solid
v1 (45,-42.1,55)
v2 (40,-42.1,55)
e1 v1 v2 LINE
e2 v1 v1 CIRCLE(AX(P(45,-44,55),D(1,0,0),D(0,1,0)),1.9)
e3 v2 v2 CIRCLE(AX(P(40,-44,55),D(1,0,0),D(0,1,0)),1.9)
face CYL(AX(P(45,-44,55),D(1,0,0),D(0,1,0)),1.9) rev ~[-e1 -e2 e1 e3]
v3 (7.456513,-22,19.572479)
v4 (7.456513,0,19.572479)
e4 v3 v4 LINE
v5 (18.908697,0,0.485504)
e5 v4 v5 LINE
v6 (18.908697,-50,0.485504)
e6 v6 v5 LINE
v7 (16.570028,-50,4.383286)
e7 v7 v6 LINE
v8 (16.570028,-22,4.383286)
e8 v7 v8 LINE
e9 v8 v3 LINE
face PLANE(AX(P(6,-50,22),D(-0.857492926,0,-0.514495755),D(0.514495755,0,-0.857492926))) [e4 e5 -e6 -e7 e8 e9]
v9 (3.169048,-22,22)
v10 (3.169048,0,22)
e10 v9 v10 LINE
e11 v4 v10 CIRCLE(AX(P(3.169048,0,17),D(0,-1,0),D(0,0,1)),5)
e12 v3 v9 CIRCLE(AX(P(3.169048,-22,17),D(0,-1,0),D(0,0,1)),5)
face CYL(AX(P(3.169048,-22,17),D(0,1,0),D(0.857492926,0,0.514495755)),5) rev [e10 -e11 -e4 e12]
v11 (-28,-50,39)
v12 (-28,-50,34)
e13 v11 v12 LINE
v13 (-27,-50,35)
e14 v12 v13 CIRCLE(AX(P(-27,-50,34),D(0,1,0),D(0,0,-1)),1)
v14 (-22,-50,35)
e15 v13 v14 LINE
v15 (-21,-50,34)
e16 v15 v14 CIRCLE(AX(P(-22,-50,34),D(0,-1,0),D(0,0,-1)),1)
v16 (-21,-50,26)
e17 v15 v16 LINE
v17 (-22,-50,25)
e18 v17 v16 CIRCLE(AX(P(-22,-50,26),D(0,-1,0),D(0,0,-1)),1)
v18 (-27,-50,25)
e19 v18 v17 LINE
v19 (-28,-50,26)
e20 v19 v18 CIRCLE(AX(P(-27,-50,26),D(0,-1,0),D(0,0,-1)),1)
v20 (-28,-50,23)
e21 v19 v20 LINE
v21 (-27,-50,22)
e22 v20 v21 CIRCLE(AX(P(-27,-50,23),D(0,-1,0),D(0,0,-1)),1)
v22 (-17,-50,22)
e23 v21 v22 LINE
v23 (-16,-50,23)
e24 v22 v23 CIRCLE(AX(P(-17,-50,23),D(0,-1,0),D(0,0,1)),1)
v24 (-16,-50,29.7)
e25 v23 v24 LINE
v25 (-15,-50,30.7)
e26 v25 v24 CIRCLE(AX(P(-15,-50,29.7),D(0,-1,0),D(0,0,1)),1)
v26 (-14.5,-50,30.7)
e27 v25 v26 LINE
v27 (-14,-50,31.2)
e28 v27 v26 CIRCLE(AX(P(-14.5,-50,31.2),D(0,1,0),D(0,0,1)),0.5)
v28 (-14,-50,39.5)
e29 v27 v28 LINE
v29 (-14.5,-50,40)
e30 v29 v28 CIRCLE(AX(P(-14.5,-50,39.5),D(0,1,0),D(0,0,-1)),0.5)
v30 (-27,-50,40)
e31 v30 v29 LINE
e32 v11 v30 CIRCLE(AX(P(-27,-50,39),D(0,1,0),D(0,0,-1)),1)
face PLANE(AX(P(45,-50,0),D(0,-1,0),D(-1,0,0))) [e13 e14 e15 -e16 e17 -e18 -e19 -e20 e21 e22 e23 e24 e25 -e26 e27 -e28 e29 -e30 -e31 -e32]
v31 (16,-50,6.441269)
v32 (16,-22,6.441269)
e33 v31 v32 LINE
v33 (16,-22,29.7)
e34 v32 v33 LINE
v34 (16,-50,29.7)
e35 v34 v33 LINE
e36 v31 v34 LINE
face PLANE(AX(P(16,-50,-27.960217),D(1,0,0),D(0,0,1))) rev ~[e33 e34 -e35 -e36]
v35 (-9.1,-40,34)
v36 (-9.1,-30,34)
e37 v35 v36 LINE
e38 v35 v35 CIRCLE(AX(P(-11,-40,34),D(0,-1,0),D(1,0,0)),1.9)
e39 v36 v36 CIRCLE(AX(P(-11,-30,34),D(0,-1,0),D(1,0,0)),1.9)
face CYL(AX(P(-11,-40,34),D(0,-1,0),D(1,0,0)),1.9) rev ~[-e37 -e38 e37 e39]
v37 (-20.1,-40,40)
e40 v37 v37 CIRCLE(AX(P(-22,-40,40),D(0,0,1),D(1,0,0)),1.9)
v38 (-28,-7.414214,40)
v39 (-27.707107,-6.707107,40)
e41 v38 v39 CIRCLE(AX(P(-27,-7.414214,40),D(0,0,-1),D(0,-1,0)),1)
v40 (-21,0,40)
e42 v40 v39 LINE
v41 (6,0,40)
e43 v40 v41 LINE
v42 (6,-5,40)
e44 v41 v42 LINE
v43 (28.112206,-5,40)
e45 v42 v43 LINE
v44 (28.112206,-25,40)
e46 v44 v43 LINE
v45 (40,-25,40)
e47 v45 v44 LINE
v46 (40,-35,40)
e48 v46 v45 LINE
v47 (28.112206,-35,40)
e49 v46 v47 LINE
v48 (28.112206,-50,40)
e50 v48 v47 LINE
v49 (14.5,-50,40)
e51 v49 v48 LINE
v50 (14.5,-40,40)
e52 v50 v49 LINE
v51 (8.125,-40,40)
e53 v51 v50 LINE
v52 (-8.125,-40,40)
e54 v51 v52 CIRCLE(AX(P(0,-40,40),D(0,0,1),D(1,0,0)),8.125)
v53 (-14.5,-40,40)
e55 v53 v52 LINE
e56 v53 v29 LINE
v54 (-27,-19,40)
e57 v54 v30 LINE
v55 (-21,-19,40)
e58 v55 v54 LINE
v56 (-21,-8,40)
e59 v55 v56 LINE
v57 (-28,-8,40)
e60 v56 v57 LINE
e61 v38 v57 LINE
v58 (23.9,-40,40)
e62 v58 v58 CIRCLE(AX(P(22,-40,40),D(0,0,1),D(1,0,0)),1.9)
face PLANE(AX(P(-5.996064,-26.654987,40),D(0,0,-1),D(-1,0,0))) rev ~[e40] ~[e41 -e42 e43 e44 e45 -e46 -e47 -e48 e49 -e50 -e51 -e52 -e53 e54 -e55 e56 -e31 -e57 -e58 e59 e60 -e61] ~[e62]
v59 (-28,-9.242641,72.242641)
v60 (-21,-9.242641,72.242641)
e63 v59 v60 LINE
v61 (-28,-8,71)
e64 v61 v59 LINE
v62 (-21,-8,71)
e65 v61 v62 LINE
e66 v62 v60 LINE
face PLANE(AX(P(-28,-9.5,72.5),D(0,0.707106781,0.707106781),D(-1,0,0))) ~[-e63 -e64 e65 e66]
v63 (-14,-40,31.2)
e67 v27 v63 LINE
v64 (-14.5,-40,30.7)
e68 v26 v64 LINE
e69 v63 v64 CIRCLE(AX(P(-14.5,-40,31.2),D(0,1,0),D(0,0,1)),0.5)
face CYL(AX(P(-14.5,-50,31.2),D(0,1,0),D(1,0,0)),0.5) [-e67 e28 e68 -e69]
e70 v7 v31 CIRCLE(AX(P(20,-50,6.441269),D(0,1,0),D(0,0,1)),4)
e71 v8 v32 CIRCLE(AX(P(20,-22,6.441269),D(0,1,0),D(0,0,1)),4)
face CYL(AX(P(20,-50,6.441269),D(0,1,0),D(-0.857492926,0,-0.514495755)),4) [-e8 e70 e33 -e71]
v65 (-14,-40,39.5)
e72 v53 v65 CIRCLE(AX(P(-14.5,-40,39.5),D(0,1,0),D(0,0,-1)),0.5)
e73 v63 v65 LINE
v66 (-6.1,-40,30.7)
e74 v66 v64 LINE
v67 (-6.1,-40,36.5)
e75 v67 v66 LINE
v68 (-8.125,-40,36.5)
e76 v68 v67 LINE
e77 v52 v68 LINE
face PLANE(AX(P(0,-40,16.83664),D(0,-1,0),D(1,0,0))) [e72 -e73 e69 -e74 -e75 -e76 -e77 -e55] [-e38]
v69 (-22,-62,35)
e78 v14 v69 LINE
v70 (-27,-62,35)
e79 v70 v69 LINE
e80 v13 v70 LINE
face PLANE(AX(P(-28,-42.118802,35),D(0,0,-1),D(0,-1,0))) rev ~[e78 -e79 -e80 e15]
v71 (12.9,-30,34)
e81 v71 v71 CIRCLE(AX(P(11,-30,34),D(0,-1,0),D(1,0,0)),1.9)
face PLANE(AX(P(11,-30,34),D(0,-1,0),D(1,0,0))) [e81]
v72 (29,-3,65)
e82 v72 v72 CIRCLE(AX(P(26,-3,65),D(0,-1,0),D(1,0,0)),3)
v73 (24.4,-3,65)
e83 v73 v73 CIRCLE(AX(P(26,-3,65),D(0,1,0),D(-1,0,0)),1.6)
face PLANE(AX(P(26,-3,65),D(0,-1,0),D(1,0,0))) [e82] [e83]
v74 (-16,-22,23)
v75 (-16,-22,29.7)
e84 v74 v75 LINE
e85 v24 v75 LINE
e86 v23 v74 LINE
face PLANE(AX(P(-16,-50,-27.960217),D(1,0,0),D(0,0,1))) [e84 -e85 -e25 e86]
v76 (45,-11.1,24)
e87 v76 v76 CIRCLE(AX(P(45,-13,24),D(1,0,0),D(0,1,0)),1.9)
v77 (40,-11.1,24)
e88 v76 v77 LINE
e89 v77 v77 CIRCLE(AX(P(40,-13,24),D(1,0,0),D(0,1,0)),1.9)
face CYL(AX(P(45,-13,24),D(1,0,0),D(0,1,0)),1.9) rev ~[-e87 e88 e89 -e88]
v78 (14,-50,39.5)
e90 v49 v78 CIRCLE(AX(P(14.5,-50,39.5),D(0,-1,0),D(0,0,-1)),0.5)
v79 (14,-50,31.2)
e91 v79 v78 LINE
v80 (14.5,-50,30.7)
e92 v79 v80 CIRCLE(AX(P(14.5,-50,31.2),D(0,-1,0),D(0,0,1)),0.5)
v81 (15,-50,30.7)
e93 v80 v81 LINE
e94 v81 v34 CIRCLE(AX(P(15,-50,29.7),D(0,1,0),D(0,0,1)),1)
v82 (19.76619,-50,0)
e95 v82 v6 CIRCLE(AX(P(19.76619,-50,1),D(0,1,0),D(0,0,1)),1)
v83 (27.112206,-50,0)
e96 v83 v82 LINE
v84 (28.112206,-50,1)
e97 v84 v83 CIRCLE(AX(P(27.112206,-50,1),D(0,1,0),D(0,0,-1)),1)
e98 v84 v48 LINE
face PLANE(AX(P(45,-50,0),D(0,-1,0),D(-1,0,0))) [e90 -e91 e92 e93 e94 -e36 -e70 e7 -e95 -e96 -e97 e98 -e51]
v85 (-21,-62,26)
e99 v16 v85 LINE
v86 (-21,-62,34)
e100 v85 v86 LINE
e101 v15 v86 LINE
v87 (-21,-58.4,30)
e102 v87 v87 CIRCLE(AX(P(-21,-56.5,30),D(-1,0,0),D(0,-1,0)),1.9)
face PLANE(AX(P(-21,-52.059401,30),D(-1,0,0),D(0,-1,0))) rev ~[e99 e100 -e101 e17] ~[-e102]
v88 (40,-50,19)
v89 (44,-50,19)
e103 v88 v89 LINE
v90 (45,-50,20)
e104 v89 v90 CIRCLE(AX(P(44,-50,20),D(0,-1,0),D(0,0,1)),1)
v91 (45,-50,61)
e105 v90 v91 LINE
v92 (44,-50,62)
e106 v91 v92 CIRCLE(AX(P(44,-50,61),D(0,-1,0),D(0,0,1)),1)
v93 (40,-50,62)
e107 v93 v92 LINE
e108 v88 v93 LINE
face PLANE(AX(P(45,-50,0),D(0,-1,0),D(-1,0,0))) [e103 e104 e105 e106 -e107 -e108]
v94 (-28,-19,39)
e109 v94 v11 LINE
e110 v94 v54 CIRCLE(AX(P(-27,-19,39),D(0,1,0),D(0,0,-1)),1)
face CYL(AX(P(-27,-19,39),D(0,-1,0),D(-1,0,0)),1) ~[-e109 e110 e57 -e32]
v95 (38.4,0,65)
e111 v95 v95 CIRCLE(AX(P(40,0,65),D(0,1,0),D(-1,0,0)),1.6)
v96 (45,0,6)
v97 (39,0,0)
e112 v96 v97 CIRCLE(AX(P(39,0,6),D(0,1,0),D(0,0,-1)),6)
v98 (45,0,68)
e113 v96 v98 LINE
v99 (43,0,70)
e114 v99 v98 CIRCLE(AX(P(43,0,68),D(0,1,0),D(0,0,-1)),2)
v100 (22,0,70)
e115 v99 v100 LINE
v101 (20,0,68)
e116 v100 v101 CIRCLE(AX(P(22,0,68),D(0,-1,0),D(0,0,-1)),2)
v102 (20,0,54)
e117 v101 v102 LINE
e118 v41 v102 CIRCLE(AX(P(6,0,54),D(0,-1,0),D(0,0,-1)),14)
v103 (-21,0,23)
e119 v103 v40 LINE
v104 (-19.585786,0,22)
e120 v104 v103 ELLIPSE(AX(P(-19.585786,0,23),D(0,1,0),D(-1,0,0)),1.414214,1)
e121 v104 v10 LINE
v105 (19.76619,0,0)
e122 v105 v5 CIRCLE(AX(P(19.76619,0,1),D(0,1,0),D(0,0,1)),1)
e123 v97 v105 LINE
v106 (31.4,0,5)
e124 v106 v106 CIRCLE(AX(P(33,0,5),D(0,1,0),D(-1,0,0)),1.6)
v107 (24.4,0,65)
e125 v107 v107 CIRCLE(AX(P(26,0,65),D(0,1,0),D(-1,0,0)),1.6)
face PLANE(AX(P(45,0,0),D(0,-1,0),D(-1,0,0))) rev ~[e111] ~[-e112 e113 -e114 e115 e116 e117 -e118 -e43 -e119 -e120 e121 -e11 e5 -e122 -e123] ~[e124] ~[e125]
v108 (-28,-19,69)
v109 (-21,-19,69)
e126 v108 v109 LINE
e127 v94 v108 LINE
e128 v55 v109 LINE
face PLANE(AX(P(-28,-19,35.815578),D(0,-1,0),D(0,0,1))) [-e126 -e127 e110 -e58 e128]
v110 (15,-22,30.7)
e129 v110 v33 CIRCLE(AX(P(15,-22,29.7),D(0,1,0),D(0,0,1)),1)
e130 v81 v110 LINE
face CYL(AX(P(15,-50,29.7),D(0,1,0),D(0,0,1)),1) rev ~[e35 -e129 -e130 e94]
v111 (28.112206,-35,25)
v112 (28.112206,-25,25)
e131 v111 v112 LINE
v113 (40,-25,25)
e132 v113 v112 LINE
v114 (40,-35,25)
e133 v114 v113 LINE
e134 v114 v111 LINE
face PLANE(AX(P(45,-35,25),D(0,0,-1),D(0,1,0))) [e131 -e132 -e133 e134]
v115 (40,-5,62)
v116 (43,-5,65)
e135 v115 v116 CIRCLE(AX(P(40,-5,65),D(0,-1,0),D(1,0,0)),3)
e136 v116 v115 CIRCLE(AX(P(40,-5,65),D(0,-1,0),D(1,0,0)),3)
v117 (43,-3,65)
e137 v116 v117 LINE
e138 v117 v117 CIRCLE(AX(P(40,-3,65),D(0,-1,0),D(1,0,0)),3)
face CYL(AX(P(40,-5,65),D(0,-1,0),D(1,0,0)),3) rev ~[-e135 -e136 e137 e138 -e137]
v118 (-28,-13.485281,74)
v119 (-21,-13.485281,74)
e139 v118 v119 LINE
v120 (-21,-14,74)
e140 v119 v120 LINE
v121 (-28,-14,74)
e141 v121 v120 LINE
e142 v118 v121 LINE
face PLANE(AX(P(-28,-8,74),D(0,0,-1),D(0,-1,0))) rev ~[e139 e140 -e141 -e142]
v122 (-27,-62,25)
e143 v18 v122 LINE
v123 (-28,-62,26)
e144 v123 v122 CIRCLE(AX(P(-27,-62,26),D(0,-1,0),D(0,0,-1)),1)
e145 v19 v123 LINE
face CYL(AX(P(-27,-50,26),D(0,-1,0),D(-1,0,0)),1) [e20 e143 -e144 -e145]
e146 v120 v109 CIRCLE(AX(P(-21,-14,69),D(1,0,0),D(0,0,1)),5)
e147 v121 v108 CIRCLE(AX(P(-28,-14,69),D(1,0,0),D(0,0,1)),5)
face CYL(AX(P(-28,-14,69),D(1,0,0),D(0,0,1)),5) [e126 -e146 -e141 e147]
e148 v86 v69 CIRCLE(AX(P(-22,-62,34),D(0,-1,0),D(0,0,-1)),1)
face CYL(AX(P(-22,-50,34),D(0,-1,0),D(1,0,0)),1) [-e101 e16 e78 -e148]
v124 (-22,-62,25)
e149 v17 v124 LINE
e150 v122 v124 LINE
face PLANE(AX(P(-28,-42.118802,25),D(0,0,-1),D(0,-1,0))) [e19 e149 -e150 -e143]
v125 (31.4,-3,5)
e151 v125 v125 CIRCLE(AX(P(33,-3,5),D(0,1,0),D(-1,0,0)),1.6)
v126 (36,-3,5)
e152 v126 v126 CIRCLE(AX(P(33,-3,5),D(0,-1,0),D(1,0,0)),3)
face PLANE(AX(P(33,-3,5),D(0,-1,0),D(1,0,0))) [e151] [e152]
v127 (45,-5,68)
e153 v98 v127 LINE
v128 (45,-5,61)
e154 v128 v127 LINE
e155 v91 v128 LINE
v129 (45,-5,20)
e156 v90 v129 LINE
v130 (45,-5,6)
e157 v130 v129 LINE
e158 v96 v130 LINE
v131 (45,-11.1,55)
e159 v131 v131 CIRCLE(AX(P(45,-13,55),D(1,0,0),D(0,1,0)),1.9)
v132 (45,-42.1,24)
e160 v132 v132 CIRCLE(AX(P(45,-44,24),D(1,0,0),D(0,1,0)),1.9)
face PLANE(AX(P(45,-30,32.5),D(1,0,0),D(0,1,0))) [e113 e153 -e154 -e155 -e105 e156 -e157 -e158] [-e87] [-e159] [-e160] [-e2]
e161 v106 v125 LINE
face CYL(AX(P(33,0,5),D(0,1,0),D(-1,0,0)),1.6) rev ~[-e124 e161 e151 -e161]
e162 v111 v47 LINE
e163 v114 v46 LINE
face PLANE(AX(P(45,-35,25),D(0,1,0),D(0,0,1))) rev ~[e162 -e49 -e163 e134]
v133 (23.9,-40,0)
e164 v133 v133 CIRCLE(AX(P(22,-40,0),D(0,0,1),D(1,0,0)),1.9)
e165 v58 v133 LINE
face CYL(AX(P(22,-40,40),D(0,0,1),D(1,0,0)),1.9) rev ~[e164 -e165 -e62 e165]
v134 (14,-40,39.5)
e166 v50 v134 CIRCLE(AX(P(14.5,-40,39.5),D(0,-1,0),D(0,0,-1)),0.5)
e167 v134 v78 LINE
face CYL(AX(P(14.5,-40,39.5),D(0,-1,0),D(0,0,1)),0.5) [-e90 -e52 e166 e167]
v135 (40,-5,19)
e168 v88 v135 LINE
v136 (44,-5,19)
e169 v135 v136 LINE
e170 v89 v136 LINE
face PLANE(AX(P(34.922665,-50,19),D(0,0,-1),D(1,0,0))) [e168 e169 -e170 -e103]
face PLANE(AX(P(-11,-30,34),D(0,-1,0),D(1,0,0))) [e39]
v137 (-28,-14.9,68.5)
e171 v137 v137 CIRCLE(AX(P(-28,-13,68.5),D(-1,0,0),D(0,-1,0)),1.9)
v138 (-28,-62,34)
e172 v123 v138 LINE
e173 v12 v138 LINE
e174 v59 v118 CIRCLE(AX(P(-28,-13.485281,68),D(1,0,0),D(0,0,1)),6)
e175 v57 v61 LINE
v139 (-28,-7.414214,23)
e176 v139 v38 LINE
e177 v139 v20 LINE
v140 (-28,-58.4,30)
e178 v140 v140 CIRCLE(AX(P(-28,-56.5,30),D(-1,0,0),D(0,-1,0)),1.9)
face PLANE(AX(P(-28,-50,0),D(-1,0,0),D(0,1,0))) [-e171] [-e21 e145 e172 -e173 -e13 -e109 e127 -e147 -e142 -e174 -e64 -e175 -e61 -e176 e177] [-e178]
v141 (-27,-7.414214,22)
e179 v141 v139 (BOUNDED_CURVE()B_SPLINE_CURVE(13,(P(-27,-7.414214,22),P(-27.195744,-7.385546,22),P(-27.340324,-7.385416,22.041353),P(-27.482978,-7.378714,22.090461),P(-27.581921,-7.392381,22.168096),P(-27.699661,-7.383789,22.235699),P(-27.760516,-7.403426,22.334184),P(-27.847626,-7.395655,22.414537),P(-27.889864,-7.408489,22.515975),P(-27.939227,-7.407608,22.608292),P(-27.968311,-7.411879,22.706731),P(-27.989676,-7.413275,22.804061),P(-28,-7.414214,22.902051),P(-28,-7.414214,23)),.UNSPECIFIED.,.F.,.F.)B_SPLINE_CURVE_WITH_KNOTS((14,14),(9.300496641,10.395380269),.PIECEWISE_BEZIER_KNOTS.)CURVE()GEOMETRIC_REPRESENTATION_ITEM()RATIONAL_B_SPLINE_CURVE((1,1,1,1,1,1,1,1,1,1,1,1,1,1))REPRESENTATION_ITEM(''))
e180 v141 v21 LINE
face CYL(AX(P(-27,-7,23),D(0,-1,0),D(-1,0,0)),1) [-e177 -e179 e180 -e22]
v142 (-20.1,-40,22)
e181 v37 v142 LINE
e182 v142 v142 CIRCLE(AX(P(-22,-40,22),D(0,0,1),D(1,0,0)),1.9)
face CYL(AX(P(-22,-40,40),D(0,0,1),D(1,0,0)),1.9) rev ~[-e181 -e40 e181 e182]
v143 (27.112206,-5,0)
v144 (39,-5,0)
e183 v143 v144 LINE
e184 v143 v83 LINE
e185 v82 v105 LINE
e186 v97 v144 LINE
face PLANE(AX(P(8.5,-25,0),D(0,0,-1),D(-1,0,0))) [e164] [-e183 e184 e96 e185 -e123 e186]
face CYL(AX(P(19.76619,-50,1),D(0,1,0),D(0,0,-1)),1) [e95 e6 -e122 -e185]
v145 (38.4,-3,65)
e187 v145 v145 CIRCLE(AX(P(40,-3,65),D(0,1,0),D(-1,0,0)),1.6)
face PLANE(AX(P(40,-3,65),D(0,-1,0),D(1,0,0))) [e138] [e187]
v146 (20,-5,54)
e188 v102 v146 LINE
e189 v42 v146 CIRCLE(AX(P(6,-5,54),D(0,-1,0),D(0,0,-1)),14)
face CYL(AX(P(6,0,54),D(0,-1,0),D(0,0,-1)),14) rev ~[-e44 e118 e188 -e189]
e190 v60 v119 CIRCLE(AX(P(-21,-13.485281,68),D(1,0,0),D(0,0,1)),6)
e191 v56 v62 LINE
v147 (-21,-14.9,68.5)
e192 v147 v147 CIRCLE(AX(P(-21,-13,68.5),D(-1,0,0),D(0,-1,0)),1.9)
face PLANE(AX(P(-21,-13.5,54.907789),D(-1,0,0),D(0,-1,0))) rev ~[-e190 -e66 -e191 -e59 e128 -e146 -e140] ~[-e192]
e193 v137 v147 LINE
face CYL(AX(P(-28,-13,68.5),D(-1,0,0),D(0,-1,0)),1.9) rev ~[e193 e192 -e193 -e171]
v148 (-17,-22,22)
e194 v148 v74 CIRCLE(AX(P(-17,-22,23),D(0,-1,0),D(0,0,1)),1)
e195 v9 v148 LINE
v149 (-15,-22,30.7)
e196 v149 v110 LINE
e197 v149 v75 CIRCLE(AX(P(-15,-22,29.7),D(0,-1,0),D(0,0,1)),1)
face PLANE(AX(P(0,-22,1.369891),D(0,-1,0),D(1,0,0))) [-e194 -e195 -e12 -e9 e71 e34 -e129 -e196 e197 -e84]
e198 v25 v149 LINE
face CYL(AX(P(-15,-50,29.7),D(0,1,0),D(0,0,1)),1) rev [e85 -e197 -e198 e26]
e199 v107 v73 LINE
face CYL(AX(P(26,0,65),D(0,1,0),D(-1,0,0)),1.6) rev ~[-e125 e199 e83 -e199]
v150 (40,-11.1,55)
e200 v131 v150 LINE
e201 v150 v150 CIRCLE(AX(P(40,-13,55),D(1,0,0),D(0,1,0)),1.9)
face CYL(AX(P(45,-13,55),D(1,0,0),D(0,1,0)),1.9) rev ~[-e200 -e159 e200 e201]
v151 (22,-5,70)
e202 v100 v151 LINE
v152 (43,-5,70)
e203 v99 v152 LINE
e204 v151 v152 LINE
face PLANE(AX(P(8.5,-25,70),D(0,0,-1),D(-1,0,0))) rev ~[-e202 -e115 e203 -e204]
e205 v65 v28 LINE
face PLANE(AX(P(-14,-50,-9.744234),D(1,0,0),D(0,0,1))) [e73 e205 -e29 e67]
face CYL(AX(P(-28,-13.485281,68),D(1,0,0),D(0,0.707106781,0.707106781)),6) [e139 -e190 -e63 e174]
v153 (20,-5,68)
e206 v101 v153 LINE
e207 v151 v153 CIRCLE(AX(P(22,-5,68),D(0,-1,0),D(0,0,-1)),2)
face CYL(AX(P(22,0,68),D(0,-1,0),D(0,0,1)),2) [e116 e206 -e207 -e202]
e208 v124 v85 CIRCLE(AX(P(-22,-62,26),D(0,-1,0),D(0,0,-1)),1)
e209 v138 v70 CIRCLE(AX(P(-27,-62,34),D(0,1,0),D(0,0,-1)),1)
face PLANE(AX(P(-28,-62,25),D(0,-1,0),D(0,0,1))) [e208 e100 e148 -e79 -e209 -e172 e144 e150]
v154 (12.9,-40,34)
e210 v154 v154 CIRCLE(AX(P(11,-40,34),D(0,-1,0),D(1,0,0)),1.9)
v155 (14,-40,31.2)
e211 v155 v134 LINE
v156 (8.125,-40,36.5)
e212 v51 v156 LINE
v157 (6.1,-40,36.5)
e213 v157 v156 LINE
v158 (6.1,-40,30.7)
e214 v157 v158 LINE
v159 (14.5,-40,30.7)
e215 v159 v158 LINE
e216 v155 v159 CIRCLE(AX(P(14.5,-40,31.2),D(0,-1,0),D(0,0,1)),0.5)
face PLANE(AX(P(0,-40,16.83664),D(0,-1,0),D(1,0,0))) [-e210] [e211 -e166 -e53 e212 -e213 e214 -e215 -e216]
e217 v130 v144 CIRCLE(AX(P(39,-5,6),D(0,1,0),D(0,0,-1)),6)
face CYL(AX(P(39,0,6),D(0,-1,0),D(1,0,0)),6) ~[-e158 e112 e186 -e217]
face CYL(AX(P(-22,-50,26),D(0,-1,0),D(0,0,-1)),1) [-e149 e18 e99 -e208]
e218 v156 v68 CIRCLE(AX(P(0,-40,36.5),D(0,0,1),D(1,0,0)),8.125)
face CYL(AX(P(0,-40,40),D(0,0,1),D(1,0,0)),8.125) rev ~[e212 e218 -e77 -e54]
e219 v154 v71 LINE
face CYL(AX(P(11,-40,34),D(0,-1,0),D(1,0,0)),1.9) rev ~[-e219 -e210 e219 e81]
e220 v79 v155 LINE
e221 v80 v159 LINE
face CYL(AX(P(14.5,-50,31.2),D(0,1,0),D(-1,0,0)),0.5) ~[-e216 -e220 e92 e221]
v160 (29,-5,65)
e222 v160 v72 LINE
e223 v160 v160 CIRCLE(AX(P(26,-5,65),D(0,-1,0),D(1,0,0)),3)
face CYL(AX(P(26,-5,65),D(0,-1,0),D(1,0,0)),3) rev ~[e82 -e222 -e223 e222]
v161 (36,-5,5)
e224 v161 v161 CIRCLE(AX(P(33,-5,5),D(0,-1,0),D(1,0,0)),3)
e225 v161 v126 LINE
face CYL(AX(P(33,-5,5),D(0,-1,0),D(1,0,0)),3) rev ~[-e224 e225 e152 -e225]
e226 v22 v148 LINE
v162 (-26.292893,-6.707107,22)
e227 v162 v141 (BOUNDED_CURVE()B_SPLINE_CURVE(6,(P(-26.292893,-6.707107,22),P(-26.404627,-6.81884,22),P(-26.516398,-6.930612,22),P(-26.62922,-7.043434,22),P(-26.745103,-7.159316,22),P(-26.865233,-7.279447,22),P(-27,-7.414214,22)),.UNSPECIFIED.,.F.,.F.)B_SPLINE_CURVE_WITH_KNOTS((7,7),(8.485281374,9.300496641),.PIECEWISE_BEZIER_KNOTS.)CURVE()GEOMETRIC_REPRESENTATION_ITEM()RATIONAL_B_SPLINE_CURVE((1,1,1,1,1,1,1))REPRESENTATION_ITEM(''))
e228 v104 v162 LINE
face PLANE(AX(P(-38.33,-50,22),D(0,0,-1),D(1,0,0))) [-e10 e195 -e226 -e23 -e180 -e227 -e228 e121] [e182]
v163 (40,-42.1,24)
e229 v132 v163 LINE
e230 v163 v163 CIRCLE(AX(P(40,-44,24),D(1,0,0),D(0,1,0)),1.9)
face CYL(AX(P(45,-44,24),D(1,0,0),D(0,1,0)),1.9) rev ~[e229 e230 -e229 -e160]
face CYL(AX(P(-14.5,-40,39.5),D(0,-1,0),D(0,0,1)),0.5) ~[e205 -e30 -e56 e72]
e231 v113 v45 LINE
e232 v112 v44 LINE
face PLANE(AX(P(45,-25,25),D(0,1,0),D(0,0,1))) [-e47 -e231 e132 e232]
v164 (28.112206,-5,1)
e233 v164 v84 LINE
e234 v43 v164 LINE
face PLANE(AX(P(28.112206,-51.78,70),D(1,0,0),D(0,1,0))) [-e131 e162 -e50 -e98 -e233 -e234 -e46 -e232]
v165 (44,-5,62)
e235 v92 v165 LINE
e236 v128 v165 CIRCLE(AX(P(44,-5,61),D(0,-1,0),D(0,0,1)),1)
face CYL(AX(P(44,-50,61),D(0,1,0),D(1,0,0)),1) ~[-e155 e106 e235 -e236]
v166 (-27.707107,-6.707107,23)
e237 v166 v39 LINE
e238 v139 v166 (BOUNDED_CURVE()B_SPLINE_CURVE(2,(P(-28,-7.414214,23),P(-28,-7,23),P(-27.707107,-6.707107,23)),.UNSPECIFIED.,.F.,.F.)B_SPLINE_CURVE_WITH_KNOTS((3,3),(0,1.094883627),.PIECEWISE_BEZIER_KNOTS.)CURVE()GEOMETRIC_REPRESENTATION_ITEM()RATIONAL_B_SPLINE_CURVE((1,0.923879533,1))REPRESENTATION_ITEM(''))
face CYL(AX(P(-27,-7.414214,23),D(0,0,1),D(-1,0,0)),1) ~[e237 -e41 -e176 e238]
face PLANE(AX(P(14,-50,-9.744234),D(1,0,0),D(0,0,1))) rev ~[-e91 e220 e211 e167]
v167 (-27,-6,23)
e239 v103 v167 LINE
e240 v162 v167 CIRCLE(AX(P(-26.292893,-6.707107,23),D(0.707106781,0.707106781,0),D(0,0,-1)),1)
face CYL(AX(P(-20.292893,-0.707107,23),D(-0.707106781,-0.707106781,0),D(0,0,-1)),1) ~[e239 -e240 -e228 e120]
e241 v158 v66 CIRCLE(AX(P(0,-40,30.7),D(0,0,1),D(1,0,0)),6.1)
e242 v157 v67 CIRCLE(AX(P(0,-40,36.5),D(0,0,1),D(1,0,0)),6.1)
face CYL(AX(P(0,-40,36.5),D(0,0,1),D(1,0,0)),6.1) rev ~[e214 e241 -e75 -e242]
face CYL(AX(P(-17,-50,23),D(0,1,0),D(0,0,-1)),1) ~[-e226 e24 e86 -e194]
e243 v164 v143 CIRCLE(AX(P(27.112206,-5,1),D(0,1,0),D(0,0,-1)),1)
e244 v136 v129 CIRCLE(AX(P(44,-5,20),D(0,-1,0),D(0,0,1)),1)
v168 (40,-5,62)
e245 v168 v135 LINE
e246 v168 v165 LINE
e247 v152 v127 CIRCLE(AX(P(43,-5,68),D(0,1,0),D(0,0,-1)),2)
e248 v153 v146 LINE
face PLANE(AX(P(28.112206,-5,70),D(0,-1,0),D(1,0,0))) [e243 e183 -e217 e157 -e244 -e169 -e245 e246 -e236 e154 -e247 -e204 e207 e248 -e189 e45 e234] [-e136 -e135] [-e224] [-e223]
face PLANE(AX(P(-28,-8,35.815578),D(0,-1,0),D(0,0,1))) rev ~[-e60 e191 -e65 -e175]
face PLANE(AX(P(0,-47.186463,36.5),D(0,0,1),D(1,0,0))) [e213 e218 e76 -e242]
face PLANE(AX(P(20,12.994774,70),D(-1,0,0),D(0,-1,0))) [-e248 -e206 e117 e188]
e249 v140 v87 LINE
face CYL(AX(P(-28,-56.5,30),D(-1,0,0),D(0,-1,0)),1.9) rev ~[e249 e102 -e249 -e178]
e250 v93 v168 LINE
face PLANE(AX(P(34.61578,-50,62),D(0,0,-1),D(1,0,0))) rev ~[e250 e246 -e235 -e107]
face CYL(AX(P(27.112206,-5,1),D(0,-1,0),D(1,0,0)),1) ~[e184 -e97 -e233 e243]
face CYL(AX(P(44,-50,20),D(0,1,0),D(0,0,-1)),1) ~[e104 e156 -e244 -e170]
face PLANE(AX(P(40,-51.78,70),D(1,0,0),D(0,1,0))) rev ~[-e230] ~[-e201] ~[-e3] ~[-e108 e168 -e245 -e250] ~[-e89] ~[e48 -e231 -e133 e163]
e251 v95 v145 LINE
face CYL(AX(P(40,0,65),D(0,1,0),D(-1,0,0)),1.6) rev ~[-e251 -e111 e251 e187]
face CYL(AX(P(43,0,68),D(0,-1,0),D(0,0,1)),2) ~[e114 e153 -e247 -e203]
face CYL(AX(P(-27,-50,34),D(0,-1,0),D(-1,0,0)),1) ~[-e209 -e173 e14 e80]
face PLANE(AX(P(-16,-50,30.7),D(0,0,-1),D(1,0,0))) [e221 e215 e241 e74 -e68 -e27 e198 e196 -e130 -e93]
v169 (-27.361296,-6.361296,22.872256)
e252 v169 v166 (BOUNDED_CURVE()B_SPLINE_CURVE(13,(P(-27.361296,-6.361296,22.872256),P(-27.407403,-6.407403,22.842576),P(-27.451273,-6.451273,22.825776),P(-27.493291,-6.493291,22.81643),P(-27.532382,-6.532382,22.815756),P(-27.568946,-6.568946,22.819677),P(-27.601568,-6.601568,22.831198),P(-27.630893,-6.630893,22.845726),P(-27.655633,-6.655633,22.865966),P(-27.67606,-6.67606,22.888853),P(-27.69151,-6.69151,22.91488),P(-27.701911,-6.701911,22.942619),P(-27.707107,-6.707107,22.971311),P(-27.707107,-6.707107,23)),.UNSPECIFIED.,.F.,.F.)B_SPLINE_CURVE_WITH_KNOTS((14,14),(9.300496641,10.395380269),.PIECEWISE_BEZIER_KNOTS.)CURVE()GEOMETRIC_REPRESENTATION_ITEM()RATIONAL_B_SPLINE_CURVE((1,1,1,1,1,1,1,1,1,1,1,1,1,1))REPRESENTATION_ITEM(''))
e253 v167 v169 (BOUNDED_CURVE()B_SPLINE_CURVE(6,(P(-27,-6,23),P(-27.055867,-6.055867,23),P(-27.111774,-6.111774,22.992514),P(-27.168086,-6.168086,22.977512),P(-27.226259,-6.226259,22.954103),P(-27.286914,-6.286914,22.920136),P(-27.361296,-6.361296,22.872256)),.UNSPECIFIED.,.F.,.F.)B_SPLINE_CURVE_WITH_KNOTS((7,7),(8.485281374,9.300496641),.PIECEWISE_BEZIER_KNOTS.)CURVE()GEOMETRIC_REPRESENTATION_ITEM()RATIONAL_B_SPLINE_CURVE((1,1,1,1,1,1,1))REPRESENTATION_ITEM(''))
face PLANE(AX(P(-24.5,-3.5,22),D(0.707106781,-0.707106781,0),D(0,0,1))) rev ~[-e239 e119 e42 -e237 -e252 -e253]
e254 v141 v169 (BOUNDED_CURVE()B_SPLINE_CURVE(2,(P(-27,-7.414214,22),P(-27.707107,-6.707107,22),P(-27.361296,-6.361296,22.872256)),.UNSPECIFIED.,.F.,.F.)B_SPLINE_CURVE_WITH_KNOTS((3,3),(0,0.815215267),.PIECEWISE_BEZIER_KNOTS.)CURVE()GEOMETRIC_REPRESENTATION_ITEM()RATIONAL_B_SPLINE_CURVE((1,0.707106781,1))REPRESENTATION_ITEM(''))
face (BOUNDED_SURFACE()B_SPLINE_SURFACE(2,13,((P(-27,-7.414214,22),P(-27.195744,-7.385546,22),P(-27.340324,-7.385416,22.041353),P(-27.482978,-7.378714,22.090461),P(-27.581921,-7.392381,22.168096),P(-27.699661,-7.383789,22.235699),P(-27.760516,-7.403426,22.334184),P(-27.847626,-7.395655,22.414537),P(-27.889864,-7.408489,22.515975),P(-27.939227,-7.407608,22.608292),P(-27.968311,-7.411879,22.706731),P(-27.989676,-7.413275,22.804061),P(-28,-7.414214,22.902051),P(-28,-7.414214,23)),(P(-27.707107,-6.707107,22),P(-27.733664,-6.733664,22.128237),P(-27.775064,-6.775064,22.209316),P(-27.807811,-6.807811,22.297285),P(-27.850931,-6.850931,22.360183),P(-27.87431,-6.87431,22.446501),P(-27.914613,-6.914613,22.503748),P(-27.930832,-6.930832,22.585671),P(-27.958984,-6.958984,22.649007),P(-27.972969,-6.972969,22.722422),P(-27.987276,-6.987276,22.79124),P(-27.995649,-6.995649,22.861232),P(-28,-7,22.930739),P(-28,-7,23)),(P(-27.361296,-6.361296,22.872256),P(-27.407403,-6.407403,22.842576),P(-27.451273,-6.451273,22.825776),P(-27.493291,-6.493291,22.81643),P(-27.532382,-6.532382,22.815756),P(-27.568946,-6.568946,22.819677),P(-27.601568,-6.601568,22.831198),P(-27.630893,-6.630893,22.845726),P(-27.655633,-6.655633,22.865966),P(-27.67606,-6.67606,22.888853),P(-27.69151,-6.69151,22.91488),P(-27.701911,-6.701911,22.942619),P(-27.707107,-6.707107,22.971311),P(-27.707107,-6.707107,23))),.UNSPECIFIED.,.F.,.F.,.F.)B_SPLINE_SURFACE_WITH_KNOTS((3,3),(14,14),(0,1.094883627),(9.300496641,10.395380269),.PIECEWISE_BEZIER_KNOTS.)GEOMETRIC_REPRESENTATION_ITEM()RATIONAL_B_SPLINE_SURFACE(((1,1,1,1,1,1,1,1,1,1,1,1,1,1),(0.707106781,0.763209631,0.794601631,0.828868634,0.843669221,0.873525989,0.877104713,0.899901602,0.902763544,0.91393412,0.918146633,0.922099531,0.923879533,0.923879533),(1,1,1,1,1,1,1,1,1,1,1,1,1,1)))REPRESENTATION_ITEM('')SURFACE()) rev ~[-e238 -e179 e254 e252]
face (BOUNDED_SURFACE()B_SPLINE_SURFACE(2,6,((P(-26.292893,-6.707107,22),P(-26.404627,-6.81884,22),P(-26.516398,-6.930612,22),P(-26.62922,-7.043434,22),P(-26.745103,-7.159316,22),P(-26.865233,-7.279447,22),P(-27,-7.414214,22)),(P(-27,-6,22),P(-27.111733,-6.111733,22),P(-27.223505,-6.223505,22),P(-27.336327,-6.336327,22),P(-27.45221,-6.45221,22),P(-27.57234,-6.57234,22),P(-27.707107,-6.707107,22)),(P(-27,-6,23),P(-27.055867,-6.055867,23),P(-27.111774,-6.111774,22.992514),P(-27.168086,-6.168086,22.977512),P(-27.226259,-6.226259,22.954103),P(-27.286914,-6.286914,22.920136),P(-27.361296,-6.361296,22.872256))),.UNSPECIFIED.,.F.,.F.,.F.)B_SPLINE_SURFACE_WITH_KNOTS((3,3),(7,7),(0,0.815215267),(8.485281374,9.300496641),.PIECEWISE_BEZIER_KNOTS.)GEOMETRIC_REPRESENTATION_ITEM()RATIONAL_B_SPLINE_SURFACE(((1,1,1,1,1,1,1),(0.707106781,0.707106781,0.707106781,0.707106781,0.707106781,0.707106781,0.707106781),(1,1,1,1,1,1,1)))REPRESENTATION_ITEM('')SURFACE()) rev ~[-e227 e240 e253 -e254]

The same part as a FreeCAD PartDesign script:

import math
import FreeCAD as App
import Part
import Sketcher

V = App.Vector
Q = App.Units.Quantity


def edges_at(feature, points):
    """Names of the edges that pass closest to the given points."""
    edges = feature.Shape.Edges
    near = lambda p: min(range(len(edges)), key=lambda i: edges[i].distToShape(Part.Vertex(*p))[0])
    return sorted({f"Edge{near(p) + 1}" for p in points})


def add_polygon(sketch, points):
    """Adds a closed chain of lines whose ends are joined by coincident constraints."""
    first, n = sketch.GeometryCount, len(points)
    for a, b in zip(points, points[1:] + points[:1]):
        sketch.addGeometry(Part.LineSegment(App.Vector(*a, 0), App.Vector(*b, 0)), False)
    for i in range(n):
        sketch.addConstraint(Sketcher.Constraint("Coincident", first + i, 2, first + (i + 1) % n, 1))

doc = App.newDocument("Part")
body = doc.addObject("PartDesign::Body", "Body")

# Sketch on XY plane
sketch1 = body.newObject("Sketcher::SketchObject", "Sketch")
sketch1.AttachmentSupport = (doc.getObject("XY_Plane"), [""])
sketch1.MapMode = "FlatFace"
add_polygon(sketch1, [(45, 0), (-28, 0), (-28, -50), (45, -50)])  # lines 0-3
sketch1.addConstraint([
    Sketcher.Constraint("Horizontal", 0),
    Sketcher.Constraint("Vertical", 1),
    Sketcher.Constraint("Horizontal", 2),
    Sketcher.Constraint("Vertical", 3),
    Sketcher.Constraint("PointOnObject", 0, 2, -1),
    Sketcher.Constraint("DistanceX", 0, 2, 0, 1, Q("73 mm")),
    Sketcher.Constraint("DistanceY", 1, 2, 1, 1, Q("50 mm")),
    Sketcher.Constraint("DistanceX", 0, 2, -1, 1, Q("28 mm")),
])
pad1 = body.newObject("PartDesign::Pad", "Pad")
pad1.Profile = sketch1
pad1.Length = 70

# Sketch on XY plane
sketch2 = body.newObject("Sketcher::SketchObject", "Sketch001")
sketch2.AttachmentSupport = (doc.getObject("XY_Plane"), [""])
sketch2.MapMode = "FlatFace"
sketch2.AttachmentOffset = App.Placement(V(0, 0, 70), App.Rotation())
add_polygon(sketch2, [(28, -5), (28, -52), (40, -52), (40, -5)])  # lines 0-3
sketch2.addConstraint([
    Sketcher.Constraint("Vertical", 0),
    Sketcher.Constraint("Horizontal", 1),
    Sketcher.Constraint("Vertical", 2),
    Sketcher.Constraint("Horizontal", 3),
    Sketcher.Constraint("DistanceX", -1, 1, 1, 2, Q("40 mm")),
    Sketcher.Constraint("DistanceY", 2, 2, -1, 1, Q("5 mm")),
    Sketcher.Constraint("DistanceY", 0, 2, 0, 1, Q("46.78 mm")),
    Sketcher.Constraint("DistanceX", 1, 1, 1, 2, Q("11.887794 mm")),
])
pocket1 = body.newObject("PartDesign::Pocket", "Pocket")
pocket1.Profile = sketch2
pocket1.Type = "ThroughAll"

# Sketch on XY plane
sketch3 = body.newObject("Sketcher::SketchObject", "Sketch002")
sketch3.AttachmentSupport = (doc.getObject("XY_Plane"), [""])
sketch3.MapMode = "FlatFace"
sketch3.AttachmentOffset = App.Placement(V(0, 0, 70), App.Rotation())
add_polygon(sketch3, [(30, -65), (30, -5), (20, -5), (20, 13), (-41, 13), (-41, -65)])  # lines 0-5
sketch3.addConstraint([
    Sketcher.Constraint("Vertical", 0),
    Sketcher.Constraint("Horizontal", 1),
    Sketcher.Constraint("Vertical", 2),
    Sketcher.Constraint("Horizontal", 3),
    Sketcher.Constraint("Vertical", 4),
    Sketcher.Constraint("Horizontal", 5),
    Sketcher.Constraint("DistanceX", 1, 2, 1, 1, Q("10 mm")),
    Sketcher.Constraint("DistanceX", -1, 1, 0, 2, Q("30 mm")),
    Sketcher.Constraint("DistanceY", 0, 2, -1, 1, Q("5 mm")),
    Sketcher.Constraint("DistanceY", 4, 2, 4, 1, Q("78.090798 mm")),
    Sketcher.Constraint("DistanceX", 3, 2, 3, 1, Q("60.783405 mm")),
    Sketcher.Constraint("DistanceY", 0, 1, 0, 2, Q("60.096024 mm")),
])
pocket2 = body.newObject("PartDesign::Pocket", "Pocket001")
pocket2.Profile = sketch3
pocket2.Length = 30

# Sketch on XY plane
sketch4 = body.newObject("Sketcher::SketchObject", "Sketch003")
sketch4.AttachmentSupport = (doc.getObject("XY_Plane"), [""])
sketch4.MapMode = "FlatFace"
sketch4.AttachmentOffset = App.Placement(V(0, 0, 40), App.Rotation())
sketch4.addGeometry([
    Part.Circle(V(-22, -40, 0), V(0, 0, 1), 1.9),
    Part.Circle(V(22, -40, 0), V(0, 0, 1), 1.9),
], False)
sketch4.addConstraint([
    Sketcher.Constraint("Equal", 0, 1),
    Sketcher.Constraint("Symmetric", 0, 3, 1, 3, -2),
    Sketcher.Constraint("Diameter", 0, Q("3.8 mm")),
    Sketcher.Constraint("DistanceX", 0, 3, -1, 1, Q("22 mm")),
    Sketcher.Constraint("DistanceY", 0, 3, -1, 1, Q("40 mm")),
])
pocket3 = body.newObject("PartDesign::Pocket", "Pocket002")
pocket3.Profile = sketch4
pocket3.Type = "ThroughAll"

# Sketch on XY plane
sketch5 = body.newObject("Sketcher::SketchObject", "Sketch004")
sketch5.AttachmentSupport = (doc.getObject("XY_Plane"), [""])
sketch5.MapMode = "FlatFace"
sketch5.AttachmentOffset = App.Placement(V(0, 0, 40), App.Rotation())
sketch5.addGeometry([
    Part.ArcOfCircle(Part.Circle(V(0, -40, 0), V(0, 0, 1), 8), math.radians(0), math.radians(180)),
    Part.LineSegment(V(-8, -40, 0), V(-8, -59, 0)),
    Part.LineSegment(V(-8, -59, 0), V(8, -59, 0)),
    Part.LineSegment(V(8, -59, 0), V(8, -40, 0)),
], False)
sketch5.addConstraint([
    Sketcher.Constraint("Tangent", 0, 2, 1, 1),
    Sketcher.Constraint("Coincident", 1, 2, 2, 1),
    Sketcher.Constraint("Coincident", 2, 2, 3, 1),
    Sketcher.Constraint("Tangent", 3, 2, 0, 1),
    Sketcher.Constraint("Vertical", 1),
    Sketcher.Constraint("Horizontal", 2),
    Sketcher.Constraint("Vertical", 3),
    Sketcher.Constraint("PointOnObject", 0, 3, -2),
    Sketcher.Constraint("DistanceY", 0, 3, -1, 1, Q("40 mm")),
    Sketcher.Constraint("Radius", 0, Q("8.125 mm")),
    Sketcher.Constraint("DistanceY", 1, 2, 1, 1, Q("19.24 mm")),
])
pocket4 = body.newObject("PartDesign::Pocket", "Pocket003")
pocket4.Profile = sketch5
pocket4.Length = 3.5

# Sketch on XY plane
sketch6 = body.newObject("Sketcher::SketchObject", "Sketch005")
sketch6.AttachmentSupport = (doc.getObject("XY_Plane"), [""])
sketch6.MapMode = "FlatFace"
sketch6.AttachmentOffset = App.Placement(V(0, 0, 36.5), App.Rotation())
sketch6.addGeometry([
    Part.ArcOfCircle(Part.Circle(V(0, -40, 0), V(0, 0, 1), 6), math.radians(0), math.radians(180)),
    Part.LineSegment(V(-6, -40, 0), V(-6, -59, 0)),
    Part.LineSegment(V(-6, -59, 0), V(6, -59, 0)),
    Part.LineSegment(V(6, -59, 0), V(6, -40, 0)),
], False)
sketch6.addConstraint([
    Sketcher.Constraint("Tangent", 0, 2, 1, 1),
    Sketcher.Constraint("Coincident", 1, 2, 2, 1),
    Sketcher.Constraint("Coincident", 2, 2, 3, 1),
    Sketcher.Constraint("Tangent", 3, 2, 0, 1),
    Sketcher.Constraint("Vertical", 1),
    Sketcher.Constraint("Horizontal", 2),
    Sketcher.Constraint("Vertical", 3),
    Sketcher.Constraint("PointOnObject", 0, 3, -2),
    Sketcher.Constraint("Radius", 0, Q("6.1 mm")),
    Sketcher.Constraint("DistanceY", 0, 3, -1, 1, Q("40 mm")),
    Sketcher.Constraint("DistanceY", 1, 2, 1, 1, Q("18.98 mm")),
])
pocket5 = body.newObject("PartDesign::Pocket", "Pocket004")
pocket5.Profile = sketch6
pocket5.Length = 9

# Sketch on XZ plane
sketch7 = body.newObject("Sketcher::SketchObject", "Sketch006")
sketch7.AttachmentSupport = (doc.getObject("XZ_Plane"), [""])
sketch7.MapMode = "FlatFace"
sketch7.AttachmentOffset = App.Placement(V(0, 0, 50), App.Rotation())
add_polygon(sketch7, [(-14, 43), (-14, -10), (14, -10), (14, 43)])  # lines 0-3
sketch7.addConstraint([
    Sketcher.Constraint("Vertical", 0),
    Sketcher.Constraint("Horizontal", 1),
    Sketcher.Constraint("Vertical", 2),
    Sketcher.Constraint("Horizontal", 3),
    Sketcher.Constraint("DistanceX", 1, 1, 1, 2, Q("28 mm")),
    Sketcher.Constraint("DistanceX", 0, 2, -1, 1, Q("14 mm")),
    Sketcher.Constraint("DistanceY", 0, 2, 0, 1, Q("53.161749 mm")),
    Sketcher.Constraint("DistanceY", 0, 2, -1, 1, Q("9.744234 mm")),
])
pocket6 = body.newObject("PartDesign::Pocket", "Pocket005")
pocket6.Profile = sketch7
pocket6.Length = 10

# Sketch on XZ plane
sketch8 = body.newObject("Sketcher::SketchObject", "Sketch007")
sketch8.AttachmentSupport = (doc.getObject("XZ_Plane"), [""])
sketch8.MapMode = "FlatFace"
sketch8.AttachmentOffset = App.Placement(V(0, 0, 50), App.Rotation())
add_polygon(sketch8, [(-16, 31), (-16, -28), (16, -28), (16, 31)])  # lines 0-3
sketch8.addConstraint([
    Sketcher.Constraint("Vertical", 0),
    Sketcher.Constraint("Horizontal", 1),
    Sketcher.Constraint("Vertical", 2),
    Sketcher.Constraint("Horizontal", 3),
    Sketcher.Constraint("DistanceX", 1, 1, 1, 2, Q("32 mm")),
    Sketcher.Constraint("DistanceX", 0, 2, -1, 1, Q("16 mm")),
    Sketcher.Constraint("DistanceY", -1, 1, 2, 2, Q("30.7 mm")),
    Sketcher.Constraint("DistanceY", 0, 2, 0, 1, Q("58.660217 mm")),
])
pocket7 = body.newObject("PartDesign::Pocket", "Pocket006")
pocket7.Profile = sketch8
pocket7.Length = 28

# Sketch on XZ plane
sketch9 = body.newObject("Sketcher::SketchObject", "Sketch008")
sketch9.AttachmentSupport = (doc.getObject("XZ_Plane"), [""])
sketch9.MapMode = "FlatFace"
sketch9.AttachmentOffset = App.Placement(V(0, 0, 50), App.Rotation())
add_polygon(sketch9, [(6, 22), (-38, 22), (-38, -8), (24, -8)])  # lines 0-3
sketch9.addConstraint([
    Sketcher.Constraint("Horizontal", 0),
    Sketcher.Constraint("Vertical", 1),
    Sketcher.Constraint("Horizontal", 2),
    Sketcher.Constraint("DistanceY", 1, 2, 1, 1, Q("30 mm")),
    Sketcher.Constraint("DistanceY", -1, 1, 0, 2, Q("22 mm")),
    Sketcher.Constraint("DistanceX", -1, 1, 2, 2, Q("24 mm")),
    Sketcher.Constraint("DistanceX", -1, 1, 3, 2, Q("6 mm")),
    Sketcher.Constraint("DistanceX", 0, 2, 0, 1, Q("44.33 mm")),
])
pocket8 = body.newObject("PartDesign::Pocket", "Pocket007")
pocket8.Profile = sketch9
pocket8.Length = 51

# Sketch on XZ plane
sketch10 = body.newObject("Sketcher::SketchObject", "Sketch009")
sketch10.AttachmentSupport = (doc.getObject("XZ_Plane"), [""])
sketch10.MapMode = "FlatFace"
sketch10.AttachmentOffset = App.Placement(V(0, 0, 50), App.Rotation())
add_polygon(sketch10, [(35, 73), (35, 62), (54, 62), (54, 73)])  # lines 0-3
add_polygon(sketch10, [(35, 19), (35, -17), (71, -17), (71, 19)])  # lines 4-7
sketch10.addConstraint([
    Sketcher.Constraint("Vertical", 0),
    Sketcher.Constraint("Horizontal", 1),
    Sketcher.Constraint("Vertical", 2),
    Sketcher.Constraint("Horizontal", 3),
    Sketcher.Constraint("Vertical", 4),
    Sketcher.Constraint("Horizontal", 5),
    Sketcher.Constraint("Vertical", 6),
    Sketcher.Constraint("Horizontal", 7),
    Sketcher.Constraint("DistanceY", -1, 1, 0, 2, Q("62 mm")),
    Sketcher.Constraint("DistanceY", -1, 1, 6, 2, Q("19 mm")),
    Sketcher.Constraint("DistanceX", 1, 1, 1, 2, Q("19.05323 mm")),
    Sketcher.Constraint("DistanceX", 5, 1, 5, 2, Q("35.750058 mm")),
    Sketcher.Constraint("DistanceY", 0, 2, 0, 1, Q("10.69447 mm")),
    Sketcher.Constraint("DistanceY", 4, 2, 4, 1, Q("36.172176 mm")),
    Sketcher.Constraint("DistanceX", -1, 1, 0, 2, Q("34.61578 mm")),
    Sketcher.Constraint("DistanceX", -1, 1, 4, 2, Q("34.922665 mm")),
])
pocket9 = body.newObject("PartDesign::Pocket", "Pocket008")
pocket9.Profile = sketch10
pocket9.Length = 45

# Sketch on YZ plane
sketch11 = body.newObject("Sketcher::SketchObject", "Sketch010")
sketch11.AttachmentSupport = (doc.getObject("YZ_Plane"), [""])
sketch11.MapMode = "FlatFace"
sketch11.AttachmentOffset = App.Placement(V(0, 0, 45), App.Rotation())
sketch11.addGeometry([
    Part.Circle(V(-44, 55, 0), V(0, 0, 1), 1.9),
    Part.Circle(V(-13, 24, 0), V(0, 0, 1), 1.9),
    Part.Circle(V(-13, 55, 0), V(0, 0, 1), 1.9),
    Part.Circle(V(-44, 24, 0), V(0, 0, 1), 1.9),
], False)
sketch11.addConstraint([
    Sketcher.Constraint("Equal", 0, 1),
    Sketcher.Constraint("Equal", 1, 2),
    Sketcher.Constraint("Equal", 2, 3),
    Sketcher.Constraint("Horizontal", 0, 3, 2, 3),
    Sketcher.Constraint("Horizontal", 1, 3, 3, 3),
    Sketcher.Constraint("Vertical", 1, 3, 2, 3),
    Sketcher.Constraint("Vertical", 0, 3, 3, 3),
    Sketcher.Constraint("Diameter", 0, Q("3.8 mm")),
    Sketcher.Constraint("DistanceX", 0, 3, -1, 1, Q("44 mm")),
    Sketcher.Constraint("DistanceY", -1, 1, 0, 3, Q("55 mm")),
    Sketcher.Constraint("DistanceX", 1, 3, -1, 1, Q("13 mm")),
    Sketcher.Constraint("DistanceY", -1, 1, 1, 3, Q("24 mm")),
])
pocket10 = body.newObject("PartDesign::Pocket", "Pocket009")
pocket10.Profile = sketch11
pocket10.Length = 5

# Sketch on YZ plane
sketch12 = body.newObject("Sketcher::SketchObject", "Sketch011")
sketch12.AttachmentSupport = (doc.getObject("YZ_Plane"), [""])
sketch12.MapMode = "FlatFace"
sketch12.AttachmentOffset = App.Placement(V(0, 0, -28), App.Rotation())
add_polygon(sketch12, [(-8, 74), (-8, 36), (-19, 36), (-19, 74)])  # lines 0-3
add_polygon(sketch12, [(-42, 35), (-42, 25), (-62, 25), (-62, 35)])  # lines 4-7
sketch12.addConstraint([
    Sketcher.Constraint("Vertical", 0),
    Sketcher.Constraint("Horizontal", 1),
    Sketcher.Constraint("Vertical", 2),
    Sketcher.Constraint("Horizontal", 3),
    Sketcher.Constraint("Vertical", 4),
    Sketcher.Constraint("Horizontal", 5),
    Sketcher.Constraint("Vertical", 6),
    Sketcher.Constraint("Horizontal", 7),
    Sketcher.Constraint("DistanceX", 1, 2, 1, 1, Q("11 mm")),
    Sketcher.Constraint("DistanceY", 4, 2, 4, 1, Q("10 mm")),
    Sketcher.Constraint("DistanceX", 0, 2, -1, 1, Q("8 mm")),
    Sketcher.Constraint("DistanceY", -1, 1, 2, 2, Q("74 mm")),
    Sketcher.Constraint("DistanceY", -1, 1, 4, 2, Q("25 mm")),
    Sketcher.Constraint("DistanceX", 5, 2, -1, 1, Q("62 mm")),
    Sketcher.Constraint("DistanceY", 0, 2, 0, 1, Q("38.184422 mm")),
    Sketcher.Constraint("DistanceX", 5, 2, 5, 1, Q("19.881198 mm")),
])
pad2 = body.newObject("PartDesign::Pad", "Pad001")
pad2.Profile = sketch12
pad2.Length = 7

# Sketch on YZ plane
sketch13 = body.newObject("Sketcher::SketchObject", "Sketch012")
sketch13.AttachmentSupport = (doc.getObject("YZ_Plane"), [""])
sketch13.MapMode = "FlatFace"
sketch13.AttachmentOffset = App.Placement(V(0, 0, -28), App.Rotation())
sketch13.addGeometry([
    Part.Circle(V(-56.5, 30, 0), V(0, 0, 1), 1.9),
    Part.Circle(V(-13, 68.5, 0), V(0, 0, 1), 1.9),
], False)
sketch13.addConstraint([
    Sketcher.Constraint("Equal", 0, 1),
    Sketcher.Constraint("Diameter", 0, Q("3.8 mm")),
    Sketcher.Constraint("DistanceY", -1, 1, 0, 3, Q("30 mm")),
    Sketcher.Constraint("DistanceX", 1, 3, -1, 1, Q("13 mm")),
    Sketcher.Constraint("DistanceX", 0, 3, -1, 1, Q("56.5 mm")),
    Sketcher.Constraint("DistanceY", -1, 1, 1, 3, Q("68.5 mm")),
])
pocket11 = body.newObject("PartDesign::Pocket", "Pocket010")
pocket11.Profile = sketch13
pocket11.Length = 10
pocket11.Reversed = True

# Sketch on YZ plane
sketch14 = body.newObject("Sketcher::SketchObject", "Sketch013")
sketch14.AttachmentSupport = (doc.getObject("YZ_Plane"), [""])
sketch14.MapMode = "FlatFace"
sketch14.AttachmentOffset = App.Placement(V(0, 0, 45), App.Rotation())
add_polygon(sketch14, [(-35, 40), (-35, 25), (-25, 25), (-25, 40)])  # lines 0-3
sketch14.addConstraint([
    Sketcher.Constraint("Vertical", 0),
    Sketcher.Constraint("Horizontal", 1),
    Sketcher.Constraint("Vertical", 2),
    Sketcher.Constraint("Horizontal", 3),
    Sketcher.Constraint("DistanceX", 1, 1, 1, 2, Q("10 mm")),
    Sketcher.Constraint("DistanceY", 0, 2, 0, 1, Q("15 mm")),
    Sketcher.Constraint("DistanceX", 0, 2, -1, 1, Q("35 mm")),
    Sketcher.Constraint("DistanceY", -1, 1, 0, 2, Q("25 mm")),
])
pad3 = body.newObject("PartDesign::Pad", "Pad002")
pad3.Profile = sketch14
pad3.Length = 18
pad3.Reversed = True

# Sketch on XZ plane
sketch15 = body.newObject("Sketcher::SketchObject", "Sketch014")
sketch15.AttachmentSupport = (doc.getObject("XZ_Plane"), [""])
sketch15.MapMode = "FlatFace"
sketch15.addGeometry([
    Part.Circle(V(33, 5, 0), V(0, 0, 1), 1.6),
    Part.Circle(V(40, 65, 0), V(0, 0, 1), 1.6),
    Part.Circle(V(26, 65, 0), V(0, 0, 1), 1.6),
], False)
sketch15.addConstraint([
    Sketcher.Constraint("Equal", 0, 1),
    Sketcher.Constraint("Equal", 1, 2),
    Sketcher.Constraint("Horizontal", 1, 3, 2, 3),
    Sketcher.Constraint("Diameter", 0, Q("3.2 mm")),
    Sketcher.Constraint("DistanceX", -1, 1, 0, 3, Q("33 mm")),
    Sketcher.Constraint("DistanceY", -1, 1, 0, 3, Q("5 mm")),
    Sketcher.Constraint("DistanceX", -1, 1, 1, 3, Q("40 mm")),
    Sketcher.Constraint("DistanceY", -1, 1, 1, 3, Q("65 mm")),
    Sketcher.Constraint("DistanceX", -1, 1, 2, 3, Q("26 mm")),
])
pocket12 = body.newObject("PartDesign::Pocket", "Pocket011")
pocket12.Profile = sketch15
pocket12.Length = 6
pocket12.Reversed = True

# Sketch on XZ plane
sketch16 = body.newObject("Sketcher::SketchObject", "Sketch015")
sketch16.AttachmentSupport = (doc.getObject("XZ_Plane"), [""])
sketch16.MapMode = "FlatFace"
sketch16.AttachmentOffset = App.Placement(V(0, 0, 5), App.Rotation())
sketch16.addGeometry([
    Part.Circle(V(26, 65, 0), V(0, 0, 1), 3),
    Part.Circle(V(33, 5, 0), V(0, 0, 1), 3),
    Part.Circle(V(40, 65, 0), V(0, 0, 1), 3),
], False)
sketch16.addConstraint([
    Sketcher.Constraint("Equal", 0, 1),
    Sketcher.Constraint("Equal", 1, 2),
    Sketcher.Constraint("Horizontal", 0, 3, 2, 3),
    Sketcher.Constraint("Diameter", 0, Q("6 mm")),
    Sketcher.Constraint("DistanceX", -1, 1, 0, 3, Q("26 mm")),
    Sketcher.Constraint("DistanceY", -1, 1, 0, 3, Q("65 mm")),
    Sketcher.Constraint("DistanceX", -1, 1, 1, 3, Q("33 mm")),
    Sketcher.Constraint("DistanceY", -1, 1, 1, 3, Q("5 mm")),
    Sketcher.Constraint("DistanceX", -1, 1, 2, 3, Q("40 mm")),
])
pocket13 = body.newObject("PartDesign::Pocket", "Pocket012")
pocket13.Profile = sketch16
pocket13.Length = 2

# Sketch on XZ plane
sketch17 = body.newObject("Sketcher::SketchObject", "Sketch016")
sketch17.AttachmentSupport = (doc.getObject("XZ_Plane"), [""])
sketch17.MapMode = "FlatFace"
sketch17.AttachmentOffset = App.Placement(V(0, 0, 40), App.Rotation())
sketch17.addGeometry([
    Part.Circle(V(-11, 34, 0), V(0, 0, 1), 1.9),
    Part.Circle(V(11, 34, 0), V(0, 0, 1), 1.9),
], False)
sketch17.addConstraint([
    Sketcher.Constraint("Equal", 0, 1),
    Sketcher.Constraint("Symmetric", 0, 3, 1, 3, -2),
    Sketcher.Constraint("Diameter", 0, Q("3.8 mm")),
    Sketcher.Constraint("DistanceX", 0, 3, -1, 1, Q("11 mm")),
    Sketcher.Constraint("DistanceY", -1, 1, 0, 3, Q("34 mm")),
])
pocket14 = body.newObject("PartDesign::Pocket", "Pocket013")
pocket14.Profile = sketch17
pocket14.Length = 10
doc.recompute()

chamfer = body.newObject("PartDesign::Chamfer", "Chamfer")
chamfer.Base = (pocket14, edges_at(pocket14, [(-28, 0, 31)]))
chamfer.Size = 7
doc.recompute()

chamfer2 = body.newObject("PartDesign::Chamfer", "Chamfer001")
chamfer2.Base = (chamfer, edges_at(chamfer, [(-24.5, -8, 74)]))
chamfer2.Size = 3
doc.recompute()

fillet = body.newObject("PartDesign::Fillet", "Fillet")
fillet.Base = (chamfer2, edges_at(chamfer2, [(-24.5, -11, 74)]))
fillet.Radius = 6
doc.recompute()

fillet2 = body.newObject("PartDesign::Fillet", "Fillet001")
fillet2.Base = (fillet, edges_at(fillet, [(-24.5, -19, 74)]))
fillet2.Radius = 5
doc.recompute()

fillet3 = body.newObject("PartDesign::Fillet", "Fillet002")
fillet3.Base = (fillet2, edges_at(fillet2, [(-28, -34.5, 40)]))
fillet3.Radius = 1
doc.recompute()

fillet4 = body.newObject("PartDesign::Fillet", "Fillet003")
fillet4.Base = (fillet3, edges_at(fillet3, [(-28, -28.5, 22)]))
fillet4.Radius = 1
doc.recompute()

fillet5 = body.newObject("PartDesign::Fillet", "Fillet004")
fillet5.Base = (fillet4, edges_at(fillet4, [(-16, -36, 22)]))
fillet5.Radius = 1
doc.recompute()

fillet6 = body.newObject("PartDesign::Fillet", "Fillet005")
fillet6.Base = (fillet5, edges_at(fillet5, [(19.2, -25, 0)]))
fillet6.Radius = 1
doc.recompute()

fillet7 = body.newObject("PartDesign::Fillet", "Fillet006")
fillet7.Base = (fillet6, edges_at(fillet6, [(6, -11, 22)]))
fillet7.Radius = 5
doc.recompute()

fillet8 = body.newObject("PartDesign::Fillet", "Fillet007")
fillet8.Base = (fillet7, edges_at(fillet7, [(16, -36, 5.333)]))
fillet8.Radius = 4
doc.recompute()

fillet9 = body.newObject("PartDesign::Fillet", "Fillet008")
fillet9.Base = (fillet8, edges_at(fillet8, [(16, -36, 30.7)]))
fillet9.Radius = 1
doc.recompute()

fillet10 = body.newObject("PartDesign::Fillet", "Fillet009")
fillet10.Base = (fillet9, edges_at(fillet9, [(-16, -36, 30.7)]))
fillet10.Radius = 1
doc.recompute()

fillet11 = body.newObject("PartDesign::Fillet", "Fillet010")
fillet11.Base = (fillet10, edges_at(fillet10, [
    (-28, -56, 25),
    (-21, -56, 25),
    (-21, -56, 35),
    (-28, -56, 35),
]))
fillet11.Radius = 1
doc.recompute()

fillet12 = body.newObject("PartDesign::Fillet", "Fillet011")
fillet12.Base = (fillet11, edges_at(fillet11, [
    (14, -45, 30.7),
    (-14, -45, 30.7),
    (14, -45, 40),
    (-14, -45, 40),
]))
fillet12.Radius = 0.5
doc.recompute()

fillet13 = body.newObject("PartDesign::Fillet", "Fillet012")
fillet13.Base = (fillet12, edges_at(fillet12, [(28.112, -27.5, 0)]))
fillet13.Radius = 1
doc.recompute()

fillet14 = body.newObject("PartDesign::Fillet", "Fillet013")
fillet14.Base = (fillet13, edges_at(fillet13, [(45, -27.5, 19)]))
fillet14.Radius = 1
doc.recompute()

fillet15 = body.newObject("PartDesign::Fillet", "Fillet014")
fillet15.Base = (fillet14, edges_at(fillet14, [(45, -27.5, 62)]))
fillet15.Radius = 1
doc.recompute()

fillet16 = body.newObject("PartDesign::Fillet", "Fillet015")
fillet16.Base = (fillet15, edges_at(fillet15, [(20, -2.5, 40)]))
fillet16.Radius = 14
doc.recompute()

fillet17 = body.newObject("PartDesign::Fillet", "Fillet016")
fillet17.Base = (fillet16, edges_at(fillet16, [(20, -2.5, 70), (45, -2.5, 70)]))
fillet17.Radius = 2
doc.recompute()

fillet18 = body.newObject("PartDesign::Fillet", "Fillet017")
fillet18.Base = (fillet17, edges_at(fillet17, [(45, -2.5, 0)]))
fillet18.Radius = 6
doc.recompute()

fillet19 = body.newObject("PartDesign::Fillet", "Fillet018")
fillet19.Base = (fillet18, edges_at(fillet18, [(-28, -7, 31.5)]))
fillet19.Radius = 1

doc.recompute()
